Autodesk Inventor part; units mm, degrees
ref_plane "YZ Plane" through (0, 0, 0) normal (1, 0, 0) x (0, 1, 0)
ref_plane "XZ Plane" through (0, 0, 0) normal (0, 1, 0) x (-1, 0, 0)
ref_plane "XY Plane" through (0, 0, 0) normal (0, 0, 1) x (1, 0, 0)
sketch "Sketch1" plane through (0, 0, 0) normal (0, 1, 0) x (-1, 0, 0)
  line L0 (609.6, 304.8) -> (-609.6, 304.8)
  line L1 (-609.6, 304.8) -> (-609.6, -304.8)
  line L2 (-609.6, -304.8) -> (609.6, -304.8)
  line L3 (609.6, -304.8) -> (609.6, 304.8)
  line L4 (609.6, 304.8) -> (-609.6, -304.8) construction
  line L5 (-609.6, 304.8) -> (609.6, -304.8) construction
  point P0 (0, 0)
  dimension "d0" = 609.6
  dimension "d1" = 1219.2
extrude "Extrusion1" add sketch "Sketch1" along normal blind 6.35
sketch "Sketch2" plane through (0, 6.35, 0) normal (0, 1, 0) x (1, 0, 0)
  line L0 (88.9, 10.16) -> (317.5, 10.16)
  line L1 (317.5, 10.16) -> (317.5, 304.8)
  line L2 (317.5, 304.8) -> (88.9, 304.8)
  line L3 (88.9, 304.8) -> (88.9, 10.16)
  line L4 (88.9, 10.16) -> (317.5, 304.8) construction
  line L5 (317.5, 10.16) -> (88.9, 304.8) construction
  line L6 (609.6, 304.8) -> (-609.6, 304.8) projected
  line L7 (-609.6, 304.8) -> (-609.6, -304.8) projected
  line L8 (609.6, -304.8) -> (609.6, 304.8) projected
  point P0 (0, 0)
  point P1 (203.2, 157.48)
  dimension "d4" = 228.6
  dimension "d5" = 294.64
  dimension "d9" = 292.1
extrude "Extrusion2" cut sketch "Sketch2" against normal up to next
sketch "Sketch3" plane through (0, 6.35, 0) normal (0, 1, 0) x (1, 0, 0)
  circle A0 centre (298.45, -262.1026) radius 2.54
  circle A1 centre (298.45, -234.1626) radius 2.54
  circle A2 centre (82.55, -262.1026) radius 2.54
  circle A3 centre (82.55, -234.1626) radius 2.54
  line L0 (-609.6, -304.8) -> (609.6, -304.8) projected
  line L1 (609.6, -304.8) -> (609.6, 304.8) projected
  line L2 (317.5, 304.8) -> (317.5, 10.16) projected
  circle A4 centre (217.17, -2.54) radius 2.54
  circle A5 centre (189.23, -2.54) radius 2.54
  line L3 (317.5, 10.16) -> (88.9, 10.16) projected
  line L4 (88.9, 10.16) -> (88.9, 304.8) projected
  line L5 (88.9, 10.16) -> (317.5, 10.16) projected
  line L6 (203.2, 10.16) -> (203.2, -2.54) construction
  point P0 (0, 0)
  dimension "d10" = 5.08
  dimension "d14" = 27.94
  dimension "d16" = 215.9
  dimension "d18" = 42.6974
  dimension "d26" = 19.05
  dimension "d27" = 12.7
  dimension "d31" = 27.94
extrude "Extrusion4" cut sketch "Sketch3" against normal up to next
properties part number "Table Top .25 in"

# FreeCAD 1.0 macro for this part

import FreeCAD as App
import Part
import Sketcher
Q = App.Units.Quantity


def add_polygon(sketch, points):
    """Adds a closed chain of lines whose ends are joined by coincident constraints."""
    first, n = sketch.GeometryCount, len(points)
    for a, b in zip(points, points[1:] + points[:1]):
        sketch.addGeometry(Part.LineSegment(App.Vector(*a, 0), App.Vector(*b, 0)), False)
    for i in range(n):
        sketch.addConstraint(Sketcher.Constraint("Coincident", first + i, 2, first + (i + 1) % n, 1))

doc = App.newDocument("Part")
body = doc.addObject("PartDesign::Body", "Body")

# Sketch on XZ plane
sketch1 = doc.addObject("Sketcher::SketchObject", "Sketch")
body.addObject(sketch1)
sketch1.AttachmentSupport = (doc.XZ_Plane, [""])
sketch1.MapMode = "FlatFace"
add_polygon(sketch1, [(-610, -305), (-610, 305), (610, 305), (610, -305)])  # lines 0-3
sketch1.addConstraint([
    Sketcher.Constraint("Vertical", 0),
    Sketcher.Constraint("Horizontal", 1),
    Sketcher.Constraint("Vertical", 2),
    Sketcher.Constraint("Horizontal", 3),
    Sketcher.Constraint("Symmetric", 0, 2, 2, 2, -1, 1),
    Sketcher.Constraint("DistanceX", 1, 1, 1, 2, Q("48 in")),
    Sketcher.Constraint("DistanceY", 0, 1, 0, 2, Q("24 in")),
])
pad1 = doc.addObject("PartDesign::Pad", "Pad")
body.addObject(pad1)
pad1.Profile = sketch1
pad1.Length = Q("0.25 in")
pad1.Reversed = True

# Sketch on XZ plane
sketch2 = doc.addObject("Sketcher::SketchObject", "Sketch001")
body.addObject(sketch2)
sketch2.AttachmentSupport = (doc.XZ_Plane, [""])
sketch2.MapMode = "FlatFace"
sketch2.AttachmentOffset = App.Placement(App.Vector(0, 0, -0.25 * 25.4), App.Rotation())
add_polygon(sketch2, [(89, -305), (89, -10), (318, -10), (318, -305)])  # lines 0-3
sketch2.addConstraint([
    Sketcher.Constraint("Vertical", 0),
    Sketcher.Constraint("Horizontal", 1),
    Sketcher.Constraint("Vertical", 2),
    Sketcher.Constraint("Horizontal", 3),
    Sketcher.Constraint("DistanceX", 1, 1, 1, 2, Q("9 in")),
    Sketcher.Constraint("DistanceY", 0, 1, 0, 2, Q("11.6 in")),
    Sketcher.Constraint("DistanceY", 2, 2, -1, 1, Q("12 in")),
    Sketcher.Constraint("DistanceX", -1, 1, 0, 2, Q("3.5 in")),
])
pocket1 = doc.addObject("PartDesign::Pocket", "Pocket")
body.addObject(pocket1)
pocket1.Profile = sketch2
pocket1.Type = "UpToFirst"
pocket1.Reversed = True

# Sketch on XZ plane
sketch3 = doc.addObject("Sketcher::SketchObject", "Sketch002")
body.addObject(sketch3)
sketch3.AttachmentSupport = (doc.XZ_Plane, [""])
sketch3.MapMode = "FlatFace"
sketch3.AttachmentOffset = App.Placement(App.Vector(0, 0, -0.25 * 25.4), App.Rotation())
sketch3.addGeometry([
    Part.Circle(App.Vector(298.4, 262.1, 0), App.Vector(0, 0, 1), 2.5),  # 0
    Part.Circle(App.Vector(298.4, 234.2, 0), App.Vector(0, 0, 1), 2.5),  # 1
    Part.Circle(App.Vector(82.5, 262.1, 0), App.Vector(0, 0, 1), 2.5),  # 2
    Part.Circle(App.Vector(82.5, 234.2, 0), App.Vector(0, 0, 1), 2.5),  # 3
    Part.Circle(App.Vector(217.2, 2.5, 0), App.Vector(0, 0, 1), 2.5),  # 4
    Part.Circle(App.Vector(189.2, 2.5, 0), App.Vector(0, 0, 1), 2.5),  # 5
], False)
sketch3.addConstraint([
    Sketcher.Constraint("Equal", 0, 1),
    Sketcher.Constraint("Equal", 1, 2),
    Sketcher.Constraint("Equal", 2, 3),
    Sketcher.Constraint("Equal", 3, 4),
    Sketcher.Constraint("Equal", 4, 5),
    Sketcher.Constraint("Horizontal", 0, 3, 2, 3),
    Sketcher.Constraint("Horizontal", 1, 3, 3, 3),
    Sketcher.Constraint("Horizontal", 4, 3, 5, 3),
    Sketcher.Constraint("Vertical", 0, 3, 1, 3),
    Sketcher.Constraint("Vertical", 2, 3, 3, 3),
    Sketcher.Constraint("Diameter", 0, Q("0.2 in")),
    Sketcher.Constraint("DistanceY", 1, 3, 0, 3, Q("1.1 in")),
    Sketcher.Constraint("DistanceX", 2, 3, 0, 3, Q("8.5 in")),
    Sketcher.Constraint("DistanceX", 5, 3, 4, 3, Q("1.1 in")),
    Sketcher.Constraint("DistanceY", -1, 1, 4, 3, Q("0.1 in")),
    Sketcher.Constraint("DistanceX", 4, 3, 1, 3, Q("3.2 in")),
    Sketcher.Constraint("DistanceX", -1, 1, 0, 3, Q("11.75 in")),
    Sketcher.Constraint("DistanceY", -1, 1, 0, 3, Q("10.319 in")),
])
pocket2 = doc.addObject("PartDesign::Pocket", "Pocket001")
body.addObject(pocket2)
pocket2.Profile = sketch3
pocket2.Length = Q("0.25 in")
pocket2.Reversed = True

doc.recompute()
